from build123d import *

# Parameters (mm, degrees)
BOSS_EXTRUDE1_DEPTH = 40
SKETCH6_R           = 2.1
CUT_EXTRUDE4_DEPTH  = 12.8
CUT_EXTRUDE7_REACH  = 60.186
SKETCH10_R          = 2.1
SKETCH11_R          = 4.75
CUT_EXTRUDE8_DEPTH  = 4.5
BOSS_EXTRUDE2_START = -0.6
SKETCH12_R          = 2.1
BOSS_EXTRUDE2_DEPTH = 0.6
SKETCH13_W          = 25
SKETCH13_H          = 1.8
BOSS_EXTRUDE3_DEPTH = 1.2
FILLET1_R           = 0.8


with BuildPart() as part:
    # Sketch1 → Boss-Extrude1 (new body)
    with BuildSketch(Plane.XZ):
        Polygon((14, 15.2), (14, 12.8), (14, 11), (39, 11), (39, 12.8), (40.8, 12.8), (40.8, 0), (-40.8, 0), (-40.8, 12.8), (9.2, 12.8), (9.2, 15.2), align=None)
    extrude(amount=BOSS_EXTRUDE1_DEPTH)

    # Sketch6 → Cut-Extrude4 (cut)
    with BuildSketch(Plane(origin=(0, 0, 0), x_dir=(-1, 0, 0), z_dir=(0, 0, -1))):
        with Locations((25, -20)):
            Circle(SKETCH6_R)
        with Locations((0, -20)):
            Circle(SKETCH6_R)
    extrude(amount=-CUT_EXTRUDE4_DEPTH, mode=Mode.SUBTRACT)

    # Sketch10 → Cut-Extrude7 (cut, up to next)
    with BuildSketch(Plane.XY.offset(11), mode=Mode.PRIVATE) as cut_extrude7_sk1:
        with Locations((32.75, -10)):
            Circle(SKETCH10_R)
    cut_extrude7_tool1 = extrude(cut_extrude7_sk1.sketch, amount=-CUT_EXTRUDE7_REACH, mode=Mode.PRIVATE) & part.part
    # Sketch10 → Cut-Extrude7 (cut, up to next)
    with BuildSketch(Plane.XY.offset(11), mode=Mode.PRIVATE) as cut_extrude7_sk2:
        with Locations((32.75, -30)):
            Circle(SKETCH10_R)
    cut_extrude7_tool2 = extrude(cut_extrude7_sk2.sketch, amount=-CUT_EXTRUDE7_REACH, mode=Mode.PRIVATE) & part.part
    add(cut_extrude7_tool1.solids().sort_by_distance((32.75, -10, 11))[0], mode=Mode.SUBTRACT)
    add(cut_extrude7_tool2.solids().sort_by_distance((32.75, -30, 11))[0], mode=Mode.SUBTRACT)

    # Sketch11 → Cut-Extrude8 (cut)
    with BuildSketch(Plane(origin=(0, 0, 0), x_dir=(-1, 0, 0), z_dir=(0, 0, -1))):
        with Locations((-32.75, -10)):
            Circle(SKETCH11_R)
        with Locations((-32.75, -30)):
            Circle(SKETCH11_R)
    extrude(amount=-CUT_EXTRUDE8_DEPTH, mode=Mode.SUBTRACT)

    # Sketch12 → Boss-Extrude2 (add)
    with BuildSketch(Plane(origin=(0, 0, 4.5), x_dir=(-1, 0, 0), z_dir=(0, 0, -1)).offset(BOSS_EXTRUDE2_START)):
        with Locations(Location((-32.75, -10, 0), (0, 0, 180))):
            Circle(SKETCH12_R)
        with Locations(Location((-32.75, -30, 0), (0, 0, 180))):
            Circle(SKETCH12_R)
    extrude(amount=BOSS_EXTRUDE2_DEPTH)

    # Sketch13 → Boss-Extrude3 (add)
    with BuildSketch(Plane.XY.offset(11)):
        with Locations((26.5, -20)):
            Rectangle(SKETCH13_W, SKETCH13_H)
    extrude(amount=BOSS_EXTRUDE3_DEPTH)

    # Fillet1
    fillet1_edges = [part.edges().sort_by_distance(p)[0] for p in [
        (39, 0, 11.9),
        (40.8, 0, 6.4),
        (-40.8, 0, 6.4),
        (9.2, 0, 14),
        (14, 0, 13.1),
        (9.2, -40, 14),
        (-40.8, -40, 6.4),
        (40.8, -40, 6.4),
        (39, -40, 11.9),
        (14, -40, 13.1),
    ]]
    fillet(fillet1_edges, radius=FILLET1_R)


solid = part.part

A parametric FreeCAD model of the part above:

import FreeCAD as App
import Part
import Sketcher
Q = App.Units.Quantity


def edges_at(feature, points):
    """Names of the edges that pass closest to the given points."""
    edges = feature.Shape.Edges
    near = lambda p: min(range(len(edges)), key=lambda i: edges[i].distToShape(Part.Vertex(*p))[0])
    return sorted({f"Edge{near(p) + 1}" for p in points})

doc = App.newDocument("Part")
body = doc.addObject("PartDesign::Body", "Body")

# Sketch on XZ plane
sketch1 = doc.addObject("Sketcher::SketchObject", "Sketch")
body.addObject(sketch1)
sketch1.AttachmentSupport = (doc.XZ_Plane, [""])
sketch1.MapMode = "FlatFace"
sketch1.addGeometry(Part.LineSegment(App.Vector(14, 11, 0), App.Vector(14, 15.2, 0)), False)
sketch1.addGeometry(Part.LineSegment(App.Vector(14, 15.2, 0), App.Vector(9.2, 15.2, 0)), False)
sketch1.addGeometry(Part.LineSegment(App.Vector(9.2, 15.2, 0), App.Vector(9.2, 12.8, 0)), False)
sketch1.addGeometry(Part.LineSegment(App.Vector(9.2, 12.8, 0), App.Vector(-40.8, 12.8, 0)), False)
sketch1.addGeometry(Part.LineSegment(App.Vector(-40.8, 12.8, 0), App.Vector(-40.8, 0, 0)), False)
sketch1.addGeometry(Part.LineSegment(App.Vector(-40.8, 0, 0), App.Vector(40.8, 0, 0)), False)
sketch1.addGeometry(Part.LineSegment(App.Vector(40.8, 0, 0), App.Vector(40.8, 12.8, 0)), False)
sketch1.addGeometry(Part.LineSegment(App.Vector(40.8, 12.8, 0), App.Vector(39, 12.8, 0)), False)
sketch1.addGeometry(Part.LineSegment(App.Vector(39, 12.8, 0), App.Vector(39, 11, 0)), False)
sketch1.addGeometry(Part.LineSegment(App.Vector(39, 11, 0), App.Vector(14, 11, 0)), False)
sketch1.addConstraint(Sketcher.Constraint("Coincident", 0, 2, 1, 1))
sketch1.addConstraint(Sketcher.Constraint("Coincident", 1, 2, 2, 1))
sketch1.addConstraint(Sketcher.Constraint("Coincident", 2, 2, 3, 1))
sketch1.addConstraint(Sketcher.Constraint("Coincident", 3, 2, 4, 1))
sketch1.addConstraint(Sketcher.Constraint("Coincident", 4, 2, 5, 1))
sketch1.addConstraint(Sketcher.Constraint("Coincident", 5, 2, 6, 1))
sketch1.addConstraint(Sketcher.Constraint("Coincident", 6, 2, 7, 1))
sketch1.addConstraint(Sketcher.Constraint("Coincident", 7, 2, 8, 1))
sketch1.addConstraint(Sketcher.Constraint("Coincident", 8, 2, 9, 1))
sketch1.addConstraint(Sketcher.Constraint("Coincident", 9, 2, 0, 1))
sketch1.addConstraint(Sketcher.Constraint("Vertical", 0))
sketch1.addConstraint(Sketcher.Constraint("Horizontal", 1))
sketch1.addConstraint(Sketcher.Constraint("Vertical", 2))
sketch1.addConstraint(Sketcher.Constraint("Horizontal", 3))
sketch1.addConstraint(Sketcher.Constraint("Vertical", 4))
sketch1.addConstraint(Sketcher.Constraint("Horizontal", 5))
sketch1.addConstraint(Sketcher.Constraint("Vertical", 6))
sketch1.addConstraint(Sketcher.Constraint("Horizontal", 7))
sketch1.addConstraint(Sketcher.Constraint("Vertical", 8))
sketch1.addConstraint(Sketcher.Constraint("Horizontal", 9))
sketch1.addConstraint(Sketcher.Constraint("Symmetric", 4, 2, 5, 2, -1, 1))
sketch1.addConstraint(Sketcher.Constraint("Horizontal", 3, 2, 6, 2))
sketch1.addConstraint(Sketcher.Constraint("Equal", 7, 8))
sketch1.addConstraint(Sketcher.Constraint("DistanceX", 3, 2, 3, 1, Q("50 mm")))
sketch1.addConstraint(Sketcher.Constraint("DistanceX", 9, 2, 9, 1, Q("25 mm")))
sketch1.addConstraint(Sketcher.Constraint("DistanceX", 1, 2, 1, 1, Q("4.8 mm")))
sketch1.addConstraint(Sketcher.Constraint("DistanceX", 5, 1, 5, 2, Q("81.6 mm")))
sketch1.addConstraint(Sketcher.Constraint("DistanceY", 0, 1, 0, 2, Q("4.2 mm")))
sketch1.addConstraint(Sketcher.Constraint("DistanceY", 4, 2, 4, 1, Q("12.8 mm")))
pad1 = doc.addObject("PartDesign::Pad", "Pad")
body.addObject(pad1)
pad1.Profile = sketch1
pad1.Length = 40

# Sketch on XY plane
sketch2 = doc.addObject("Sketcher::SketchObject", "Sketch001")
body.addObject(sketch2)
sketch2.AttachmentSupport = (doc.XY_Plane, [""])
sketch2.MapMode = "FlatFace"
sketch2.addGeometry(Part.Circle(App.Vector(-25, -20, 0), App.Vector(0, 0, 1), 2.1), False)
sketch2.addGeometry(Part.Circle(App.Vector(0, -20, 0), App.Vector(0, 0, 1), 2.1), False)
sketch2.addConstraint(Sketcher.Constraint("Equal", 0, 1))
sketch2.addConstraint(Sketcher.Constraint("PointOnObject", 1, 3, -2))
sketch2.addConstraint(Sketcher.Constraint("Horizontal", 0, 3, 1, 3))
sketch2.addConstraint(Sketcher.Constraint("Diameter", 0, Q("4.2 mm")))
sketch2.addConstraint(Sketcher.Constraint("DistanceX", 0, 3, -1, 1, Q("25 mm")))
sketch2.addConstraint(Sketcher.Constraint("DistanceY", 0, 3, -1, 1, Q("20 mm")))
pocket1 = doc.addObject("PartDesign::Pocket", "Pocket")
body.addObject(pocket1)
pocket1.Profile = sketch2
pocket1.Length = 12.8
pocket1.Reversed = True

# Sketch on XY plane
sketch3 = doc.addObject("Sketcher::SketchObject", "Sketch002")
body.addObject(sketch3)
sketch3.AttachmentSupport = (doc.XY_Plane, [""])
sketch3.MapMode = "FlatFace"
sketch3.AttachmentOffset = App.Placement(App.Vector(0, 0, 11), App.Rotation())
sketch3.addGeometry(Part.Circle(App.Vector(32.8, -10, 0), App.Vector(0, 0, 1), 2.1), False)
sketch3.addConstraint(Sketcher.Constraint("Diameter", 0, Q("4.2 mm")))
sketch3.addConstraint(Sketcher.Constraint("DistanceY", 0, 3, -1, 1, Q("10 mm")))
sketch3.addConstraint(Sketcher.Constraint("DistanceX", -1, 1, 0, 3, Q("32.75 mm")))
pocket2 = doc.addObject("PartDesign::Pocket", "Pocket001")
body.addObject(pocket2)
pocket2.Profile = sketch3
pocket2.Type = "UpToFirst"

# Sketch on XY plane
sketch4 = doc.addObject("Sketcher::SketchObject", "Sketch003")
body.addObject(sketch4)
sketch4.AttachmentSupport = (doc.XY_Plane, [""])
sketch4.MapMode = "FlatFace"
sketch4.AttachmentOffset = App.Placement(App.Vector(0, 0, 11), App.Rotation())
sketch4.addGeometry(Part.Circle(App.Vector(32.8, -30, 0), App.Vector(0, 0, 1), 2.1), False)
sketch4.addConstraint(Sketcher.Constraint("Diameter", 0, Q("4.2 mm")))
sketch4.addConstraint(Sketcher.Constraint("DistanceY", 0, 3, -1, 1, Q("30 mm")))
sketch4.addConstraint(Sketcher.Constraint("DistanceX", -1, 1, 0, 3, Q("32.75 mm")))
pocket3 = doc.addObject("PartDesign::Pocket", "Pocket002")
body.addObject(pocket3)
pocket3.Profile = sketch4
pocket3.Type = "UpToFirst"

# Sketch on XY plane
sketch5 = doc.addObject("Sketcher::SketchObject", "Sketch004")
body.addObject(sketch5)
sketch5.AttachmentSupport = (doc.XY_Plane, [""])
sketch5.MapMode = "FlatFace"
sketch5.addGeometry(Part.Circle(App.Vector(32.8, -10, 0), App.Vector(0, 0, 1), 4.8), False)
sketch5.addGeometry(Part.Circle(App.Vector(32.8, -30, 0), App.Vector(0, 0, 1), 4.8), False)
sketch5.addConstraint(Sketcher.Constraint("Equal", 0, 1))
sketch5.addConstraint(Sketcher.Constraint("Vertical", 0, 3, 1, 3))
sketch5.addConstraint(Sketcher.Constraint("Diameter", 0, Q("9.5 mm")))
sketch5.addConstraint(Sketcher.Constraint("DistanceY", 0, 3, -1, 1, Q("10 mm")))
sketch5.addConstraint(Sketcher.Constraint("DistanceY", 1, 3, -1, 1, Q("30 mm")))
sketch5.addConstraint(Sketcher.Constraint("DistanceX", -1, 1, 0, 3, Q("32.75 mm")))
pocket4 = doc.addObject("PartDesign::Pocket", "Pocket003")
body.addObject(pocket4)
pocket4.Profile = sketch5
pocket4.Length = 4.5
pocket4.Reversed = True

# Sketch on XY plane
sketch6 = doc.addObject("Sketcher::SketchObject", "Sketch005")
body.addObject(sketch6)
sketch6.AttachmentSupport = (doc.XY_Plane, [""])
sketch6.MapMode = "FlatFace"
sketch6.AttachmentOffset = App.Placement(App.Vector(0, 0, 5.1), App.Rotation())
sketch6.addGeometry(Part.Circle(App.Vector(32.8, -10, 0), App.Vector(0, 0, 1), 2.1), False)
sketch6.addGeometry(Part.Circle(App.Vector(32.8, -30, 0), App.Vector(0, 0, 1), 2.1), False)
sketch6.addConstraint(Sketcher.Constraint("Equal", 0, 1))
sketch6.addConstraint(Sketcher.Constraint("Vertical", 0, 3, 1, 3))
sketch6.addConstraint(Sketcher.Constraint("Diameter", 0, Q("4.2 mm")))
sketch6.addConstraint(Sketcher.Constraint("DistanceY", 0, 3, -1, 1, Q("10 mm")))
sketch6.addConstraint(Sketcher.Constraint("DistanceY", 1, 3, -1, 1, Q("30 mm")))
sketch6.addConstraint(Sketcher.Constraint("DistanceX", -1, 1, 0, 3, Q("32.75 mm")))
pad2 = doc.addObject("PartDesign::Pad", "Pad001")
body.addObject(pad2)
pad2.Profile = sketch6
pad2.Length = 0.6
pad2.Reversed = True

# Sketch on XY plane
sketch7 = doc.addObject("Sketcher::SketchObject", "Sketch006")
body.addObject(sketch7)
sketch7.AttachmentSupport = (doc.XY_Plane, [""])
sketch7.MapMode = "FlatFace"
sketch7.AttachmentOffset = App.Placement(App.Vector(0, 0, 11), App.Rotation())
sketch7.addGeometry(Part.LineSegment(App.Vector(14, -19.1, 0), App.Vector(14, -20.9, 0)), False)
sketch7.addGeometry(Part.LineSegment(App.Vector(14, -20.9, 0), App.Vector(39, -20.9, 0)), False)
sketch7.addGeometry(Part.LineSegment(App.Vector(39, -20.9, 0), App.Vector(39, -19.1, 0)), False)
sketch7.addGeometry(Part.LineSegment(App.Vector(39, -19.1, 0), App.Vector(14, -19.1, 0)), False)
sketch7.addConstraint(Sketcher.Constraint("Coincident", 0, 2, 1, 1))
sketch7.addConstraint(Sketcher.Constraint("Coincident", 1, 2, 2, 1))
sketch7.addConstraint(Sketcher.Constraint("Coincident", 2, 2, 3, 1))
sketch7.addConstraint(Sketcher.Constraint("Coincident", 3, 2, 0, 1))
sketch7.addConstraint(Sketcher.Constraint("Vertical", 0))
sketch7.addConstraint(Sketcher.Constraint("Horizontal", 1))
sketch7.addConstraint(Sketcher.Constraint("Vertical", 2))
sketch7.addConstraint(Sketcher.Constraint("Horizontal", 3))
sketch7.addConstraint(Sketcher.Constraint("DistanceX", 1, 1, 1, 2, Q("25 mm")))
sketch7.addConstraint(Sketcher.Constraint("DistanceY", 0, 2, 0, 1, Q("1.8 mm")))
sketch7.addConstraint(Sketcher.Constraint("DistanceX", -1, 1, 0, 2, Q("14 mm")))
sketch7.addConstraint(Sketcher.Constraint("DistanceY", 0, 2, -1, 1, Q("20.9 mm")))
pad3 = doc.addObject("PartDesign::Pad", "Pad002")
body.addObject(pad3)
pad3.Profile = sketch7
pad3.Length = 1.2
doc.recompute()

fillet = doc.addObject("PartDesign::Fillet", "Fillet")
body.addObject(fillet)
fillet.Base = (pad3, edges_at(pad3, [
    (39, 0, 11.9),
    (40.8, 0, 6.4),
    (-40.8, 0, 6.4),
    (9.2, 0, 14),
    (14, 0, 13.1),
    (9.2, -40, 14),
    (-40.8, -40, 6.4),
    (40.8, -40, 6.4),
    (39, -40, 11.9),
    (14, -40, 13.1),
]))
fillet.Radius = 0.8

doc.recompute()
